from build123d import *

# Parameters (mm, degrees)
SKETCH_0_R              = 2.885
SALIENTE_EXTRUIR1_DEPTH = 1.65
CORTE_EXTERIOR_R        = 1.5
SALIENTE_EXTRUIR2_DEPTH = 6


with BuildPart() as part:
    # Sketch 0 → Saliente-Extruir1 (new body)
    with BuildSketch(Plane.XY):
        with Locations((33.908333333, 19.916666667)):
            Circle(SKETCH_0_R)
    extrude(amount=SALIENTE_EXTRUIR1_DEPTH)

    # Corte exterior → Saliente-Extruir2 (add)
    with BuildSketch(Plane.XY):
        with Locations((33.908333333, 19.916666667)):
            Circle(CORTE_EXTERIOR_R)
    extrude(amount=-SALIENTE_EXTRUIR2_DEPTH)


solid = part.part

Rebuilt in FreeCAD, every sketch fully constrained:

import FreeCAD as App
import Part
import Sketcher

V = App.Vector

doc = App.newDocument("Part")
body = doc.addObject("PartDesign::Body", "Body")

# Sketch on XY plane
sketch1 = doc.addObject("Sketcher::SketchObject", "Sketch")
body.addObject(sketch1)
sketch1.AttachmentSupport = (doc.XY_Plane, [""])
sketch1.MapMode = "FlatFace"
sketch1.addGeometry(Part.Circle(V(33.9, 19.9, 0), V(0, 0, 1), 2.9), False)
sketch1.addConstraint([
    Sketcher.Constraint("Diameter", 0, 5.77),
    Sketcher.Constraint("DistanceX", -1, 1, 0, 3, 33.908333),
    Sketcher.Constraint("DistanceY", -1, 1, 0, 3, 19.916667),
])
pad1 = doc.addObject("PartDesign::Pad", "Pad")
body.addObject(pad1)
pad1.Profile = sketch1
pad1.Length = 1.65

# Sketch on XY plane
sketch2 = doc.addObject("Sketcher::SketchObject", "Sketch001")
body.addObject(sketch2)
sketch2.AttachmentSupport = (doc.XY_Plane, [""])
sketch2.MapMode = "FlatFace"
sketch2.addGeometry(Part.Circle(V(33.9, 19.9, 0), V(0, 0, 1), 1.5), False)
sketch2.addConstraint([
    Sketcher.Constraint("Diameter", 0, 3.0),
    Sketcher.Constraint("DistanceX", -1, 1, 0, 3, 33.908333),
    Sketcher.Constraint("DistanceY", -1, 1, 0, 3, 19.916667),
])
pad2 = doc.addObject("PartDesign::Pad", "Pad001")
body.addObject(pad2)
pad2.Profile = sketch2
pad2.Length = 6
pad2.Reversed = True

doc.recompute()
